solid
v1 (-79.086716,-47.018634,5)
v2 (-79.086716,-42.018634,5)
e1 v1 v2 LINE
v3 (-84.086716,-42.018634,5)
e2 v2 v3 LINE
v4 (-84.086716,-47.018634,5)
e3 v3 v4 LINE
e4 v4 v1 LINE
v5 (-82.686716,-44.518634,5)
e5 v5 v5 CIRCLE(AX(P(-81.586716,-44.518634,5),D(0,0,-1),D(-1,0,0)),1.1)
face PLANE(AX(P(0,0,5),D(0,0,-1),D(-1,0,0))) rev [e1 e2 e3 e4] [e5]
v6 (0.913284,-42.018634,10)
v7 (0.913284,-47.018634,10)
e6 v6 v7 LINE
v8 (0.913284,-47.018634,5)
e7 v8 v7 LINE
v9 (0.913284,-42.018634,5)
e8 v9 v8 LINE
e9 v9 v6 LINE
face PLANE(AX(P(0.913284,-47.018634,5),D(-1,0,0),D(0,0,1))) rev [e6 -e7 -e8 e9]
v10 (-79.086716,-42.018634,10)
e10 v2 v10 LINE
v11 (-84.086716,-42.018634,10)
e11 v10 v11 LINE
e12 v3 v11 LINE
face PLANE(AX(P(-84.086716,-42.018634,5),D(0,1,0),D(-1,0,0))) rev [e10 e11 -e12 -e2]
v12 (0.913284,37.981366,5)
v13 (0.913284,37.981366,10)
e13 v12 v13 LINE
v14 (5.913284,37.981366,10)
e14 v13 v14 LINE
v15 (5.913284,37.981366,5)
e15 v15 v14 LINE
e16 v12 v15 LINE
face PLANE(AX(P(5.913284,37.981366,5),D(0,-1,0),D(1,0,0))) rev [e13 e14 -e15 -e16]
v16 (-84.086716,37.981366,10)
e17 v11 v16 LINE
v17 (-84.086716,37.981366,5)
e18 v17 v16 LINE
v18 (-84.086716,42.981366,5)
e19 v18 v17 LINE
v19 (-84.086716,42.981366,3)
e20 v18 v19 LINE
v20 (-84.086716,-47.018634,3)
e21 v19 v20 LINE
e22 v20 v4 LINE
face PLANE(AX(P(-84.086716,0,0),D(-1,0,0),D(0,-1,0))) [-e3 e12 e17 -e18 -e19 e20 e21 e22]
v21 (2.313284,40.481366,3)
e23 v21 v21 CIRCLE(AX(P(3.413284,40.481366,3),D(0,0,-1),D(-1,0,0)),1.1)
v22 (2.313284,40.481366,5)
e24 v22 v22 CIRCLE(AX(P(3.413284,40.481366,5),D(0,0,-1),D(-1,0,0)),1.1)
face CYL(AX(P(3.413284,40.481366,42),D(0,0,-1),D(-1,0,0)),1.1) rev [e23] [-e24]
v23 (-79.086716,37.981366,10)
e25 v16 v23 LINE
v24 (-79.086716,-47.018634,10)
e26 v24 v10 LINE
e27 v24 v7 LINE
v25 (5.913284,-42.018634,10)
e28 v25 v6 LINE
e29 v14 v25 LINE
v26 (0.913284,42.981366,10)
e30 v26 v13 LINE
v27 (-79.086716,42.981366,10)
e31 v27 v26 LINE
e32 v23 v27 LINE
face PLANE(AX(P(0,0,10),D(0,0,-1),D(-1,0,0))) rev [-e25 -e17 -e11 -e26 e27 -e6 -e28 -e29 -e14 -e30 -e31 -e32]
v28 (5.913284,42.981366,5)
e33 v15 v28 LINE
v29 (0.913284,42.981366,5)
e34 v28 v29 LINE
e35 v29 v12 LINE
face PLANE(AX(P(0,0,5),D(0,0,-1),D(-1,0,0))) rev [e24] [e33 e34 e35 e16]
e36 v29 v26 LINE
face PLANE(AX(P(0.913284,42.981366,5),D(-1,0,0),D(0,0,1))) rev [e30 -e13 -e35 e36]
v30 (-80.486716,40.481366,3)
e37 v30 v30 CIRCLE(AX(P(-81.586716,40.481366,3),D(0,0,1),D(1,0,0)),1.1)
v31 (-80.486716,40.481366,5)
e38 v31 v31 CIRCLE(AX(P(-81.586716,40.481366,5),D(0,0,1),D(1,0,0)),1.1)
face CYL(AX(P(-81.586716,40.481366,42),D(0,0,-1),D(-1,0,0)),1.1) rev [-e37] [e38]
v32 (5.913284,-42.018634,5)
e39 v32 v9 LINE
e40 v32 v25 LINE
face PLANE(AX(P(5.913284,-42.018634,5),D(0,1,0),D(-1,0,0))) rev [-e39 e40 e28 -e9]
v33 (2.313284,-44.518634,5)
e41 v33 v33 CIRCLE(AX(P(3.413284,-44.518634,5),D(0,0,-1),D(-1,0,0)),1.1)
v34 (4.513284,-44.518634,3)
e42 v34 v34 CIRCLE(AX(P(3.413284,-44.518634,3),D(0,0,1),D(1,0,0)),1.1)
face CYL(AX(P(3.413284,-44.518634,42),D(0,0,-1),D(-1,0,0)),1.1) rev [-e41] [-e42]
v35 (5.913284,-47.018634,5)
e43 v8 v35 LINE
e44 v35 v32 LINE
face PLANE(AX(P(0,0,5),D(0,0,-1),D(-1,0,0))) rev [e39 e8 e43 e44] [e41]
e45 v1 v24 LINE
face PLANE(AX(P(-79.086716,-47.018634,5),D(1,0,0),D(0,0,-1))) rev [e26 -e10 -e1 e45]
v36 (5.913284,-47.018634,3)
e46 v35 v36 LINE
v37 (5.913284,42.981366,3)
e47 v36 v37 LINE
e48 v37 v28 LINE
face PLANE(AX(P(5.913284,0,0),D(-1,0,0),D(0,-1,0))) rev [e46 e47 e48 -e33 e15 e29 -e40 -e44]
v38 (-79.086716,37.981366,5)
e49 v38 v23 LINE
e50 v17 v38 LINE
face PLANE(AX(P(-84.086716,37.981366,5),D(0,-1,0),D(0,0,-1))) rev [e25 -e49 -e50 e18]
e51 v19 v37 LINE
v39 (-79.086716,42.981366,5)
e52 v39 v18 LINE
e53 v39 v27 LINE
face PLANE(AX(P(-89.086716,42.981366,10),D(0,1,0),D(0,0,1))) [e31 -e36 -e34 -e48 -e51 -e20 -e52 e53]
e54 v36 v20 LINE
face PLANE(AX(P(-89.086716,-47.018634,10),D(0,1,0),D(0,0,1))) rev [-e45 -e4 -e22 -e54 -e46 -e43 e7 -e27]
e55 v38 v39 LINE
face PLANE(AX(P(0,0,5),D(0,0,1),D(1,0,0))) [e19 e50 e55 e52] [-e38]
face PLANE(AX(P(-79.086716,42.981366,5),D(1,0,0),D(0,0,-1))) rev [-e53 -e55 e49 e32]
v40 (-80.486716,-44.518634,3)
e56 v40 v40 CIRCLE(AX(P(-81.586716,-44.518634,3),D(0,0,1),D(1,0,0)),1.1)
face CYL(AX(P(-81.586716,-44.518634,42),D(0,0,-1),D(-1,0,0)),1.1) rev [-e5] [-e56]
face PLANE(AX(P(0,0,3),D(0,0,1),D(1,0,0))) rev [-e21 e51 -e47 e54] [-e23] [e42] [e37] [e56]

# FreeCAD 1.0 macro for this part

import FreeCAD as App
import Part
import Sketcher

V = App.Vector
Q = App.Units.Quantity

doc = App.newDocument("Part")
body = doc.addObject("PartDesign::Body", "Body")

sketch1 = doc.addObject("Sketcher::SketchObject", "Sketch")
body.addObject(sketch1)
sketch1.AttachmentSupport = (doc.XY_Plane, [""])
sketch1.MapMode = "FlatFace"
sketch1.addGeometry(Part.LineSegment(V(-89.086716, 42.981366, 0), V(-89.086716, -47.018634, 0)), False)
sketch1.addGeometry(Part.LineSegment(V(-89.086716, -47.018634, 0), V(10.913284, -47.018634, 0)), False)
sketch1.addGeometry(Part.LineSegment(V(10.913284, -47.018634, 0), V(10.913284, 42.981366, 0)), False)
sketch1.addGeometry(Part.LineSegment(V(10.913284, 42.981366, 0), V(-89.086716, 42.981366, 0)), False)
sketch1.addConstraint(Sketcher.Constraint("Coincident", 0, 2, 1, 1))
sketch1.addConstraint(Sketcher.Constraint("Coincident", 1, 2, 2, 1))
sketch1.addConstraint(Sketcher.Constraint("Coincident", 2, 2, 3, 1))
sketch1.addConstraint(Sketcher.Constraint("Coincident", 3, 2, 0, 1))
sketch1.addConstraint(Sketcher.Constraint("Vertical", 0))
sketch1.addConstraint(Sketcher.Constraint("Horizontal", 1))
sketch1.addConstraint(Sketcher.Constraint("Vertical", 2))
sketch1.addConstraint(Sketcher.Constraint("Horizontal", 3))
sketch1.addConstraint(Sketcher.Constraint("DistanceX", 1, 1, 1, 2, Q("100 mm")))
sketch1.addConstraint(Sketcher.Constraint("DistanceY", 0, 2, 0, 1, Q("90 mm")))
sketch1.addConstraint(Sketcher.Constraint("DistanceX", 0, 2, -1, 1, Q("89.086716 mm")))
sketch1.addConstraint(Sketcher.Constraint("DistanceY", 0, 2, -1, 1, Q("47.018634 mm")))
pad1 = doc.addObject("PartDesign::Pad", "Pad")
body.addObject(pad1)
pad1.Profile = sketch1
pad1.Length = 10

sketch2 = doc.addObject("Sketcher::SketchObject", "Sketch001")
body.addObject(sketch2)
sketch2.AttachmentSupport = (doc.XY_Plane, [""])
sketch2.MapMode = "FlatFace"
sketch2.AttachmentOffset = App.Placement(V(0, 0, 10), App.Rotation())
sketch2.addGeometry(Part.LineSegment(V(0.913284, 42.981366, 0), V(0.913284, 37.981366, 0)), False)
sketch2.addGeometry(Part.LineSegment(V(0.913284, 37.981366, 0), V(5.913284, 37.981366, 0)), False)
sketch2.addGeometry(Part.LineSegment(V(5.913284, 37.981366, 0), V(5.913284, 42.981366, 0)), False)
sketch2.addGeometry(Part.LineSegment(V(5.913284, 42.981366, 0), V(0.913284, 42.981366, 0)), False)
sketch2.addGeometry(Part.LineSegment(V(-84.086716, 42.981366, 0), V(-84.086716, 37.981366, 0)), False)
sketch2.addGeometry(Part.LineSegment(V(-84.086716, 37.981366, 0), V(-79.086716, 37.981366, 0)), False)
sketch2.addGeometry(Part.LineSegment(V(-79.086716, 37.981366, 0), V(-79.086716, 42.981366, 0)), False)
sketch2.addGeometry(Part.LineSegment(V(-79.086716, 42.981366, 0), V(-84.086716, 42.981366, 0)), False)
sketch2.addGeometry(Part.LineSegment(V(-84.086716, -42.018634, 0), V(-84.086716, -47.018634, 0)), False)
sketch2.addGeometry(Part.LineSegment(V(-84.086716, -47.018634, 0), V(-79.086716, -47.018634, 0)), False)
sketch2.addGeometry(Part.LineSegment(V(-79.086716, -47.018634, 0), V(-79.086716, -42.018634, 0)), False)
sketch2.addGeometry(Part.LineSegment(V(-79.086716, -42.018634, 0), V(-84.086716, -42.018634, 0)), False)
sketch2.addGeometry(Part.LineSegment(V(0.913284, -42.018634, 0), V(0.913284, -47.018634, 0)), False)
sketch2.addGeometry(Part.LineSegment(V(0.913284, -47.018634, 0), V(5.913284, -47.018634, 0)), False)
sketch2.addGeometry(Part.LineSegment(V(5.913284, -47.018634, 0), V(5.913284, -42.018634, 0)), False)
sketch2.addGeometry(Part.LineSegment(V(5.913284, -42.018634, 0), V(0.913284, -42.018634, 0)), False)
sketch2.addConstraint(Sketcher.Constraint("Coincident", 0, 2, 1, 1))
sketch2.addConstraint(Sketcher.Constraint("Coincident", 1, 2, 2, 1))
sketch2.addConstraint(Sketcher.Constraint("Coincident", 2, 2, 3, 1))
sketch2.addConstraint(Sketcher.Constraint("Coincident", 3, 2, 0, 1))
sketch2.addConstraint(Sketcher.Constraint("Coincident", 4, 2, 5, 1))
sketch2.addConstraint(Sketcher.Constraint("Coincident", 5, 2, 6, 1))
sketch2.addConstraint(Sketcher.Constraint("Coincident", 6, 2, 7, 1))
sketch2.addConstraint(Sketcher.Constraint("Coincident", 7, 2, 4, 1))
sketch2.addConstraint(Sketcher.Constraint("Coincident", 8, 2, 9, 1))
sketch2.addConstraint(Sketcher.Constraint("Coincident", 9, 2, 10, 1))
sketch2.addConstraint(Sketcher.Constraint("Coincident", 10, 2, 11, 1))
sketch2.addConstraint(Sketcher.Constraint("Coincident", 11, 2, 8, 1))
sketch2.addConstraint(Sketcher.Constraint("Coincident", 12, 2, 13, 1))
sketch2.addConstraint(Sketcher.Constraint("Coincident", 13, 2, 14, 1))
sketch2.addConstraint(Sketcher.Constraint("Coincident", 14, 2, 15, 1))
sketch2.addConstraint(Sketcher.Constraint("Coincident", 15, 2, 12, 1))
sketch2.addConstraint(Sketcher.Constraint("Vertical", 0))
sketch2.addConstraint(Sketcher.Constraint("Horizontal", 1))
sketch2.addConstraint(Sketcher.Constraint("Vertical", 2))
sketch2.addConstraint(Sketcher.Constraint("Horizontal", 3))
sketch2.addConstraint(Sketcher.Constraint("Vertical", 4))
sketch2.addConstraint(Sketcher.Constraint("Horizontal", 5))
sketch2.addConstraint(Sketcher.Constraint("Vertical", 6))
sketch2.addConstraint(Sketcher.Constraint("Horizontal", 7))
sketch2.addConstraint(Sketcher.Constraint("Vertical", 8))
sketch2.addConstraint(Sketcher.Constraint("Horizontal", 9))
sketch2.addConstraint(Sketcher.Constraint("Vertical", 10))
sketch2.addConstraint(Sketcher.Constraint("Horizontal", 11))
sketch2.addConstraint(Sketcher.Constraint("Vertical", 12))
sketch2.addConstraint(Sketcher.Constraint("Horizontal", 13))
sketch2.addConstraint(Sketcher.Constraint("Vertical", 14))
sketch2.addConstraint(Sketcher.Constraint("Horizontal", 15))
sketch2.addConstraint(Sketcher.Constraint("Horizontal", 1, 2, 4, 2))
sketch2.addConstraint(Sketcher.Constraint("Horizontal", 3, 2, 6, 2))
sketch2.addConstraint(Sketcher.Constraint("Horizontal", 9, 2, 12, 2))
sketch2.addConstraint(Sketcher.Constraint("Horizontal", 11, 2, 14, 2))
sketch2.addConstraint(Sketcher.Constraint("Vertical", 7, 2, 8, 2))
sketch2.addConstraint(Sketcher.Constraint("Vertical", 6, 2, 9, 2))
sketch2.addConstraint(Sketcher.Constraint("Vertical", 3, 2, 12, 2))
sketch2.addConstraint(Sketcher.Constraint("Vertical", 2, 2, 13, 2))
sketch2.addConstraint(Sketcher.Constraint("Equal", 3, 5))
sketch2.addConstraint(Sketcher.Constraint("Equal", 15, 0))
sketch2.addConstraint(Sketcher.Constraint("Equal", 6, 8))
sketch2.addConstraint(Sketcher.Constraint("DistanceX", 1, 1, 1, 2, Q("5 mm")))
sketch2.addConstraint(Sketcher.Constraint("DistanceX", 4, 2, 0, 2, Q("85 mm")))
sketch2.addConstraint(Sketcher.Constraint("DistanceY", 8, 2, 4, 2, Q("85 mm")))
sketch2.addConstraint(Sketcher.Constraint("DistanceX", -1, 1, 0, 2, Q("0.913284 mm")))
sketch2.addConstraint(Sketcher.Constraint("DistanceY", -1, 1, 0, 2, Q("37.981366 mm")))
pocket1 = doc.addObject("PartDesign::Pocket", "Pocket")
body.addObject(pocket1)
pocket1.Profile = sketch2
pocket1.Length = 5

sketch3 = doc.addObject("Sketcher::SketchObject", "Sketch002")
body.addObject(sketch3)
sketch3.AttachmentSupport = (doc.XY_Plane, [""])
sketch3.MapMode = "FlatFace"
sketch3.addGeometry(Part.LineSegment(V(-79.086716, 42.981366, 0), V(-79.086716, 37.981366, 0)), False)
sketch3.addGeometry(Part.LineSegment(V(-79.086716, 37.981366, 0), V(-84.086716, 37.981366, 0)), False)
sketch3.addGeometry(Part.LineSegment(V(-84.086716, 37.981366, 0), V(-84.086716, 42.981366, 0)), False)
sketch3.addGeometry(Part.LineSegment(V(-84.086716, 42.981366, 0), V(-79.086716, 42.981366, 0)), False)
sketch3.addGeometry(Part.LineSegment(V(5.913284, 42.981366, 0), V(5.913284, 37.981366, 0)), False)
sketch3.addGeometry(Part.LineSegment(V(5.913284, 37.981366, 0), V(0.913284, 37.981366, 0)), False)
sketch3.addGeometry(Part.LineSegment(V(0.913284, 37.981366, 0), V(0.913284, 42.981366, 0)), False)
sketch3.addGeometry(Part.LineSegment(V(0.913284, 42.981366, 0), V(5.913284, 42.981366, 0)), False)
sketch3.addGeometry(Part.LineSegment(V(-79.086716, -42.018634, 0), V(-79.086716, -47.018634, 0)), False)
sketch3.addGeometry(Part.LineSegment(V(-79.086716, -47.018634, 0), V(-84.086716, -47.018634, 0)), False)
sketch3.addGeometry(Part.LineSegment(V(-84.086716, -47.018634, 0), V(-84.086716, -42.018634, 0)), False)
sketch3.addGeometry(Part.LineSegment(V(-84.086716, -42.018634, 0), V(-79.086716, -42.018634, 0)), False)
sketch3.addGeometry(Part.LineSegment(V(5.913284, -42.018634, 0), V(5.913284, -47.018634, 0)), False)
sketch3.addGeometry(Part.LineSegment(V(5.913284, -47.018634, 0), V(0.913284, -47.018634, 0)), False)
sketch3.addGeometry(Part.LineSegment(V(0.913284, -47.018634, 0), V(0.913284, -42.018634, 0)), False)
sketch3.addGeometry(Part.LineSegment(V(0.913284, -42.018634, 0), V(5.913284, -42.018634, 0)), False)
sketch3.addConstraint(Sketcher.Constraint("Coincident", 0, 2, 1, 1))
sketch3.addConstraint(Sketcher.Constraint("Coincident", 1, 2, 2, 1))
sketch3.addConstraint(Sketcher.Constraint("Coincident", 2, 2, 3, 1))
sketch3.addConstraint(Sketcher.Constraint("Coincident", 3, 2, 0, 1))
sketch3.addConstraint(Sketcher.Constraint("Coincident", 4, 2, 5, 1))
sketch3.addConstraint(Sketcher.Constraint("Coincident", 5, 2, 6, 1))
sketch3.addConstraint(Sketcher.Constraint("Coincident", 6, 2, 7, 1))
sketch3.addConstraint(Sketcher.Constraint("Coincident", 7, 2, 4, 1))
sketch3.addConstraint(Sketcher.Constraint("Coincident", 8, 2, 9, 1))
sketch3.addConstraint(Sketcher.Constraint("Coincident", 9, 2, 10, 1))
sketch3.addConstraint(Sketcher.Constraint("Coincident", 10, 2, 11, 1))
sketch3.addConstraint(Sketcher.Constraint("Coincident", 11, 2, 8, 1))
sketch3.addConstraint(Sketcher.Constraint("Coincident", 12, 2, 13, 1))
sketch3.addConstraint(Sketcher.Constraint("Coincident", 13, 2, 14, 1))
sketch3.addConstraint(Sketcher.Constraint("Coincident", 14, 2, 15, 1))
sketch3.addConstraint(Sketcher.Constraint("Coincident", 15, 2, 12, 1))
sketch3.addConstraint(Sketcher.Constraint("Vertical", 0))
sketch3.addConstraint(Sketcher.Constraint("Horizontal", 1))
sketch3.addConstraint(Sketcher.Constraint("Vertical", 2))
sketch3.addConstraint(Sketcher.Constraint("Horizontal", 3))
sketch3.addConstraint(Sketcher.Constraint("Vertical", 4))
sketch3.addConstraint(Sketcher.Constraint("Horizontal", 5))
sketch3.addConstraint(Sketcher.Constraint("Vertical", 6))
sketch3.addConstraint(Sketcher.Constraint("Horizontal", 7))
sketch3.addConstraint(Sketcher.Constraint("Vertical", 8))
sketch3.addConstraint(Sketcher.Constraint("Horizontal", 9))
sketch3.addConstraint(Sketcher.Constraint("Vertical", 10))
sketch3.addConstraint(Sketcher.Constraint("Horizontal", 11))
sketch3.addConstraint(Sketcher.Constraint("Vertical", 12))
sketch3.addConstraint(Sketcher.Constraint("Horizontal", 13))
sketch3.addConstraint(Sketcher.Constraint("Vertical", 14))
sketch3.addConstraint(Sketcher.Constraint("Horizontal", 15))
sketch3.addConstraint(Sketcher.Constraint("Horizontal", 1, 2, 4, 2))
sketch3.addConstraint(Sketcher.Constraint("Horizontal", 3, 2, 6, 2))
sketch3.addConstraint(Sketcher.Constraint("Horizontal", 9, 2, 12, 2))
sketch3.addConstraint(Sketcher.Constraint("Horizontal", 11, 2, 14, 2))
sketch3.addConstraint(Sketcher.Constraint("Vertical", 3, 2, 8, 2))
sketch3.addConstraint(Sketcher.Constraint("Vertical", 2, 2, 9, 2))
sketch3.addConstraint(Sketcher.Constraint("Vertical", 7, 2, 12, 2))
sketch3.addConstraint(Sketcher.Constraint("Vertical", 6, 2, 13, 2))
sketch3.addConstraint(Sketcher.Constraint("Equal", 3, 5))
sketch3.addConstraint(Sketcher.Constraint("Equal", 15, 0))
sketch3.addConstraint(Sketcher.Constraint("Equal", 6, 8))
sketch3.addConstraint(Sketcher.Constraint("DistanceX", 1, 2, 1, 1, Q("5 mm")))
sketch3.addConstraint(Sketcher.Constraint("DistanceX", 0, 2, 4, 2, Q("85 mm")))
sketch3.addConstraint(Sketcher.Constraint("DistanceY", 8, 2, 0, 2, Q("85 mm")))
sketch3.addConstraint(Sketcher.Constraint("DistanceX", 0, 2, -1, 1, Q("79.086716 mm")))
sketch3.addConstraint(Sketcher.Constraint("DistanceY", -1, 1, 0, 2, Q("37.981366 mm")))
pocket2 = doc.addObject("PartDesign::Pocket", "Pocket001")
body.addObject(pocket2)
pocket2.Profile = sketch3
pocket2.Length = 3
pocket2.Reversed = True

sketch4 = doc.addObject("Sketcher::SketchObject", "Sketch003")
body.addObject(sketch4)
sketch4.AttachmentSupport = (doc.XY_Plane, [""])
sketch4.MapMode = "FlatFace"
sketch4.addGeometry(Part.Circle(V(3.413284, 40.481366, 0), V(0, 0, 1), 1.1), False)
sketch4.addGeometry(Part.Circle(V(-81.586716, 40.481366, 0), V(0, 0, 1), 1.1), False)
sketch4.addGeometry(Part.Circle(V(-81.586716, -44.518634, 0), V(0, 0, 1), 1.1), False)
sketch4.addGeometry(Part.Circle(V(3.413284, -44.518634, 0), V(0, 0, 1), 1.1), False)
sketch4.addConstraint(Sketcher.Constraint("Equal", 0, 1))
sketch4.addConstraint(Sketcher.Constraint("Equal", 1, 2))
sketch4.addConstraint(Sketcher.Constraint("Equal", 2, 3))
sketch4.addConstraint(Sketcher.Constraint("Horizontal", 0, 3, 1, 3))
sketch4.addConstraint(Sketcher.Constraint("Horizontal", 2, 3, 3, 3))
sketch4.addConstraint(Sketcher.Constraint("Vertical", 1, 3, 2, 3))
sketch4.addConstraint(Sketcher.Constraint("Vertical", 0, 3, 3, 3))
sketch4.addConstraint(Sketcher.Constraint("Diameter", 0, Q("2.2 mm")))
sketch4.addConstraint(Sketcher.Constraint("DistanceX", 1, 3, 0, 3, Q("85 mm")))
sketch4.addConstraint(Sketcher.Constraint("DistanceY", 2, 3, 1, 3, Q("85 mm")))
sketch4.addConstraint(Sketcher.Constraint("DistanceX", -1, 1, 0, 3, Q("3.413284 mm")))
sketch4.addConstraint(Sketcher.Constraint("DistanceY", -1, 1, 0, 3, Q("40.481366 mm")))
pocket3 = doc.addObject("PartDesign::Pocket", "Pocket002")
body.addObject(pocket3)
pocket3.Profile = sketch4
pocket3.Length = 42
pocket3.Reversed = True

sketch5 = doc.addObject("Sketcher::SketchObject", "Sketch004")
body.addObject(sketch5)
sketch5.AttachmentSupport = (doc.XY_Plane, [""])
sketch5.MapMode = "FlatFace"
sketch5.addGeometry(Part.LineSegment(V(-89.086716, 42.981366, 0), V(-89.086716, -47.018634, 0)), False)
sketch5.addGeometry(Part.LineSegment(V(-89.086716, -47.018634, 0), V(10.913284, -47.018634, 0)), False)
sketch5.addGeometry(Part.LineSegment(V(10.913284, -47.018634, 0), V(10.913284, 42.981366, 0)), False)
sketch5.addGeometry(Part.LineSegment(V(10.913284, 42.981366, 0), V(-89.086716, 42.981366, 0)), False)
sketch5.addConstraint(Sketcher.Constraint("Coincident", 0, 2, 1, 1))
sketch5.addConstraint(Sketcher.Constraint("Coincident", 1, 2, 2, 1))
sketch5.addConstraint(Sketcher.Constraint("Coincident", 2, 2, 3, 1))
sketch5.addConstraint(Sketcher.Constraint("Coincident", 3, 2, 0, 1))
sketch5.addConstraint(Sketcher.Constraint("Vertical", 0))
sketch5.addConstraint(Sketcher.Constraint("Horizontal", 1))
sketch5.addConstraint(Sketcher.Constraint("Vertical", 2))
sketch5.addConstraint(Sketcher.Constraint("Horizontal", 3))
sketch5.addConstraint(Sketcher.Constraint("DistanceX", 1, 1, 1, 2, Q("100 mm")))
sketch5.addConstraint(Sketcher.Constraint("DistanceY", 0, 2, 0, 1, Q("90 mm")))
sketch5.addConstraint(Sketcher.Constraint("DistanceX", 0, 2, -1, 1, Q("89.086716 mm")))
sketch5.addConstraint(Sketcher.Constraint("DistanceY", 0, 2, -1, 1, Q("47.018634 mm")))
pocket4 = doc.addObject("PartDesign::Pocket", "Pocket003")
body.addObject(pocket4)
pocket4.Profile = sketch5
pocket4.Length = 3
pocket4.Reversed = True

sketch6 = doc.addObject("Sketcher::SketchObject", "Sketch005")
body.addObject(sketch6)
sketch6.AttachmentSupport = (doc.YZ_Plane, [""])
sketch6.MapMode = "FlatFace"
sketch6.AttachmentOffset = App.Placement(V(0, 0, 10.913284), App.Rotation())
sketch6.addGeometry(Part.LineSegment(V(42.981366, 10, 0), V(-47.018634, 10, 0)), False)
sketch6.addGeometry(Part.LineSegment(V(-47.018634, 10, 0), V(-47.018634, 3, 0)), False)
sketch6.addGeometry(Part.LineSegment(V(-47.018634, 3, 0), V(42.981366, 3, 0)), False)
sketch6.addGeometry(Part.LineSegment(V(42.981366, 3, 0), V(42.981366, 10, 0)), False)
sketch6.addConstraint(Sketcher.Constraint("Coincident", 0, 2, 1, 1))
sketch6.addConstraint(Sketcher.Constraint("Coincident", 1, 2, 2, 1))
sketch6.addConstraint(Sketcher.Constraint("Coincident", 2, 2, 3, 1))
sketch6.addConstraint(Sketcher.Constraint("Coincident", 3, 2, 0, 1))
sketch6.addConstraint(Sketcher.Constraint("Horizontal", 0))
sketch6.addConstraint(Sketcher.Constraint("Vertical", 1))
sketch6.addConstraint(Sketcher.Constraint("Horizontal", 2))
sketch6.addConstraint(Sketcher.Constraint("Vertical", 3))
sketch6.addConstraint(Sketcher.Constraint("DistanceX", 0, 2, 0, 1, Q("90 mm")))
sketch6.addConstraint(Sketcher.Constraint("DistanceY", 1, 2, 1, 1, Q("7 mm")))
sketch6.addConstraint(Sketcher.Constraint("DistanceY", -1, 1, 0, 2, Q("10 mm")))
sketch6.addConstraint(Sketcher.Constraint("DistanceX", 0, 2, -1, 1, Q("47.018634 mm")))
pocket5 = doc.addObject("PartDesign::Pocket", "Pocket004")
body.addObject(pocket5)
pocket5.Profile = sketch6
pocket5.Length = 5

sketch7 = doc.addObject("Sketcher::SketchObject", "Sketch006")
body.addObject(sketch7)
sketch7.AttachmentSupport = (doc.YZ_Plane, [""])
sketch7.MapMode = "FlatFace"
sketch7.AttachmentOffset = App.Placement(V(0, 0, -89.086716), App.Rotation())
sketch7.addGeometry(Part.LineSegment(V(42.981366, 3, 0), V(-47.018634, 3, 0)), False)
sketch7.addGeometry(Part.LineSegment(V(-47.018634, 3, 0), V(-47.018634, 10, 0)), False)
sketch7.addGeometry(Part.LineSegment(V(-47.018634, 10, 0), V(42.981366, 10, 0)), False)
sketch7.addGeometry(Part.LineSegment(V(42.981366, 10, 0), V(42.981366, 3, 0)), False)
sketch7.addConstraint(Sketcher.Constraint("Coincident", 0, 2, 1, 1))
sketch7.addConstraint(Sketcher.Constraint("Coincident", 1, 2, 2, 1))
sketch7.addConstraint(Sketcher.Constraint("Coincident", 2, 2, 3, 1))
sketch7.addConstraint(Sketcher.Constraint("Coincident", 3, 2, 0, 1))
sketch7.addConstraint(Sketcher.Constraint("Horizontal", 0))
sketch7.addConstraint(Sketcher.Constraint("Vertical", 1))
sketch7.addConstraint(Sketcher.Constraint("Horizontal", 2))
sketch7.addConstraint(Sketcher.Constraint("Vertical", 3))
sketch7.addConstraint(Sketcher.Constraint("DistanceX", 0, 2, 0, 1, Q("90 mm")))
sketch7.addConstraint(Sketcher.Constraint("DistanceY", 1, 1, 1, 2, Q("7 mm")))
sketch7.addConstraint(Sketcher.Constraint("DistanceY", -1, 1, 0, 2, Q("3 mm")))
sketch7.addConstraint(Sketcher.Constraint("DistanceX", 0, 2, -1, 1, Q("47.018634 mm")))
pocket6 = doc.addObject("PartDesign::Pocket", "Pocket005")
body.addObject(pocket6)
pocket6.Profile = sketch7
pocket6.Length = 5
pocket6.Reversed = True

doc.recompute()
